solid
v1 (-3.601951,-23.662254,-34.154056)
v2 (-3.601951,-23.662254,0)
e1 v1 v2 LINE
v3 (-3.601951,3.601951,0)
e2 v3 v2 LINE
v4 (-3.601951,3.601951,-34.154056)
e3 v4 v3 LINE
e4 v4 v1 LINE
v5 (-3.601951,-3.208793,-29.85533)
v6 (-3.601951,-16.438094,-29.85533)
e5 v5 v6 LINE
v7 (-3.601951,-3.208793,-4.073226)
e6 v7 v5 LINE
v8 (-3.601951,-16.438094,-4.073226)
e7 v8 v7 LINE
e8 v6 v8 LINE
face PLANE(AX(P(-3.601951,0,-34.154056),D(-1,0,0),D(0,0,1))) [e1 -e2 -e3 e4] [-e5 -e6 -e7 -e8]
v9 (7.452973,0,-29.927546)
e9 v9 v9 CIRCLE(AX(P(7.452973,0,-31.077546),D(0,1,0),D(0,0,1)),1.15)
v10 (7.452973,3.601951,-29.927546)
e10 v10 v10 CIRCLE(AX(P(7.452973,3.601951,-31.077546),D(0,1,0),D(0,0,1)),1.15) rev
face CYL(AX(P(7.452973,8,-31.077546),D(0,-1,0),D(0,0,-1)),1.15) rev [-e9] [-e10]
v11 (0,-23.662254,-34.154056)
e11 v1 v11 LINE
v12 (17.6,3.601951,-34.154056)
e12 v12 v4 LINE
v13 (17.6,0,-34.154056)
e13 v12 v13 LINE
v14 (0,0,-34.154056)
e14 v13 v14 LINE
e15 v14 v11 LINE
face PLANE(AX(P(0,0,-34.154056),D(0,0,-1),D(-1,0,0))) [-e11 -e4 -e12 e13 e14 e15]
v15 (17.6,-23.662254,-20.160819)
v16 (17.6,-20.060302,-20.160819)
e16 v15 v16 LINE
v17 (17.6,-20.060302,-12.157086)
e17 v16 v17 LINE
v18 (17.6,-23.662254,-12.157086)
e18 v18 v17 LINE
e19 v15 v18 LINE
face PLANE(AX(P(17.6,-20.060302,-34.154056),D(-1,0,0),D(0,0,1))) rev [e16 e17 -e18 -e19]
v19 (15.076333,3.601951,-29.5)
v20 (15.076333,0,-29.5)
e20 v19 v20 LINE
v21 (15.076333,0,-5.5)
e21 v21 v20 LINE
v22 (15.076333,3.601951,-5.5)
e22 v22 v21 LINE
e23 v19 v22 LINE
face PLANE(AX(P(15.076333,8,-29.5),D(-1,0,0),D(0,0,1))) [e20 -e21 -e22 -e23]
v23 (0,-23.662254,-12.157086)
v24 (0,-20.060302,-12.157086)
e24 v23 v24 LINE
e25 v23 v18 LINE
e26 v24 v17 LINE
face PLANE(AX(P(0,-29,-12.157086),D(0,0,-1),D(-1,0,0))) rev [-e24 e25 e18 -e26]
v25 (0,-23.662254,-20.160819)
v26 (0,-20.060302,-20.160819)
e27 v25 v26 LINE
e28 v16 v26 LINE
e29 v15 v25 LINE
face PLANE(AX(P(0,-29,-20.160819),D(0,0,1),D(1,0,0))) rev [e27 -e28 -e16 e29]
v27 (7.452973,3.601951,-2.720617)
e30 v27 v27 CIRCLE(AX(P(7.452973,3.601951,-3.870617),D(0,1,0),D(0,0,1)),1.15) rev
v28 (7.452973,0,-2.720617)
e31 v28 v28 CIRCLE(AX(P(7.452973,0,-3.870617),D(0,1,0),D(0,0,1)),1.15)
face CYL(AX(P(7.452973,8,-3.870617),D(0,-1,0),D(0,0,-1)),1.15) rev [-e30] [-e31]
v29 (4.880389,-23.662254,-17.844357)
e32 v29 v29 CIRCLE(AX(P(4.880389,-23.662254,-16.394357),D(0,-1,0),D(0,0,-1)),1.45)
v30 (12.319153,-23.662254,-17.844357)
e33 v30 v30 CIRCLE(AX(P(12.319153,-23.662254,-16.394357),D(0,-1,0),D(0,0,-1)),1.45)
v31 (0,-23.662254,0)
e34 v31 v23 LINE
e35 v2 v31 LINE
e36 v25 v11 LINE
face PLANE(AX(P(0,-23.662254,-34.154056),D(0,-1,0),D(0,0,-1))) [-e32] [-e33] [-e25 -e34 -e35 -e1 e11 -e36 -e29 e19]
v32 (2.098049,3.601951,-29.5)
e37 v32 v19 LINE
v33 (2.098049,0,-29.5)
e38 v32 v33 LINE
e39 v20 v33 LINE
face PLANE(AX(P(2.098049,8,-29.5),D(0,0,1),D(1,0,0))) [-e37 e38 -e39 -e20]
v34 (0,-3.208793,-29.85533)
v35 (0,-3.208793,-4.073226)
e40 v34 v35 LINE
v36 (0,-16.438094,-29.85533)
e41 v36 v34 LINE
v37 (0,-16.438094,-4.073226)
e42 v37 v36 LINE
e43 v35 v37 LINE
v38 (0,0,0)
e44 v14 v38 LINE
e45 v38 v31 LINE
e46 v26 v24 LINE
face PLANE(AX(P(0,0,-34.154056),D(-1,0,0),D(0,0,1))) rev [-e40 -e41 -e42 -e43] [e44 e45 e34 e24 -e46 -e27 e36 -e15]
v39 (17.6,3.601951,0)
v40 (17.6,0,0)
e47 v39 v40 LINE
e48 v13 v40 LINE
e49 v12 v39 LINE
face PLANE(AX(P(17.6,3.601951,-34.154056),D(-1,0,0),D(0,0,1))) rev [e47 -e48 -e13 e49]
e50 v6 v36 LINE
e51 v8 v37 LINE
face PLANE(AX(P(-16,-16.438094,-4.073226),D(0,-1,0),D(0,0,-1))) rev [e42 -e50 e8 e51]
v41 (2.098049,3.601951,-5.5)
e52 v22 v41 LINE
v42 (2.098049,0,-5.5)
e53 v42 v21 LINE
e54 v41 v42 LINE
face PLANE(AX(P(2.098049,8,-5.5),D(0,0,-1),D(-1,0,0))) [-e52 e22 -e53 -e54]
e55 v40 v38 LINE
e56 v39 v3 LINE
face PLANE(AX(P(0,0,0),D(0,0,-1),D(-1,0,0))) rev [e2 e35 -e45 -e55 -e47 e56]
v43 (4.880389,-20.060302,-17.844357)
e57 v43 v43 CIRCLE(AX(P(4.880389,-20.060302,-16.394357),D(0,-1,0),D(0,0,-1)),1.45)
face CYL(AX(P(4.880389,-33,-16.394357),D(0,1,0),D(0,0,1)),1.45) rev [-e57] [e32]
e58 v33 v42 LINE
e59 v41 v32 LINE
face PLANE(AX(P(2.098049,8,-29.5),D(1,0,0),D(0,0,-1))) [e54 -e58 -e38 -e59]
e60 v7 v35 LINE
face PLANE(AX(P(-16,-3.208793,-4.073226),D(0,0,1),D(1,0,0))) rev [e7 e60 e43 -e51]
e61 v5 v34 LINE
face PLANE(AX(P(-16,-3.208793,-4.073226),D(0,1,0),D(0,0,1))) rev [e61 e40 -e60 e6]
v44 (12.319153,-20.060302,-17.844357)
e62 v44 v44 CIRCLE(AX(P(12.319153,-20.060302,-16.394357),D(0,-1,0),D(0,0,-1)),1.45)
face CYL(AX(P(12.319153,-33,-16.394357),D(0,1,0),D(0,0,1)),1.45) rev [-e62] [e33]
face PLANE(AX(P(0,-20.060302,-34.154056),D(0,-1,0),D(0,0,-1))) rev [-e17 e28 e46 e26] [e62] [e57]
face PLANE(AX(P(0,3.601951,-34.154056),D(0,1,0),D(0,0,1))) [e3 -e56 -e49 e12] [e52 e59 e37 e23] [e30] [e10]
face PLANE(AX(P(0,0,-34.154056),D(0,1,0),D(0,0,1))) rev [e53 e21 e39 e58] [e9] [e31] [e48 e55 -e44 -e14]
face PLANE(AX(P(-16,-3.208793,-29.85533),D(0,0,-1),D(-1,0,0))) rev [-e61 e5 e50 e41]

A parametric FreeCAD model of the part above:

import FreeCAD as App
import Part
import Sketcher

V = App.Vector
Q = App.Units.Quantity

doc = App.newDocument("Part")
params = doc.addObject("Spreadsheet::Sheet", "Params")
for row, (alias, value) in enumerate([
    ("sketch1_width", "17.6 mm"),
    ("pad1_length", "34.154056 mm"),
    ("sketch2_diameter", "2.3 mm"),
    ("sketch2_height", "24 mm"),
    ("pocket1_length", "8 mm"),
    ("sketch3_width", "17.6 mm"),
    ("pocket2_length", "29 mm"),
    ("sketch4_diameter", "2.9 mm"),
    ("pocket3_length", "33 mm"),
    ("pocket4_length", "16 mm"),
], start=1):
    params.set(f"A{row}", alias)
    params.set(f"B{row}", "=" + value)
    params.setAlias(f"B{row}", alias)

body = doc.addObject("PartDesign::Body", "Body")

sketch1 = body.newObject("Sketcher::SketchObject", "Sketch")
sketch1.AttachmentSupport = (doc.getObject("XY_Plane"), [""])
sketch1.MapMode = "FlatFace"
sketch1.addGeometry(Part.LineSegment(V(0, 0, 0), V(17.6, 0, 0)), False)
sketch1.addGeometry(Part.LineSegment(V(17.6, 0, 0), V(17.6, 3.6, 0)), False)
sketch1.addGeometry(Part.LineSegment(V(17.6, 3.6, 0), V(-3.6, 3.6, 0)), False)
sketch1.addGeometry(Part.LineSegment(V(-3.6, 3.6, 0), V(-3.6, -23.7, 0)), False)
sketch1.addGeometry(Part.LineSegment(V(-3.6, -23.7, 0), V(17.6, -23.7, 0)), False)
sketch1.addGeometry(Part.LineSegment(V(17.6, -23.7, 0), V(17.6, -20.1, 0)), False)
sketch1.addGeometry(Part.LineSegment(V(17.6, -20.1, 0), V(0, -20.1, 0)), False)
sketch1.addGeometry(Part.LineSegment(V(0, -20.1, 0), V(0, 0, 0)), False)
sketch1.addConstraint(Sketcher.Constraint("Coincident", 0, 2, 1, 1))
sketch1.addConstraint(Sketcher.Constraint("Coincident", 1, 2, 2, 1))
sketch1.addConstraint(Sketcher.Constraint("Coincident", 2, 2, 3, 1))
sketch1.addConstraint(Sketcher.Constraint("Coincident", 3, 2, 4, 1))
sketch1.addConstraint(Sketcher.Constraint("Coincident", 4, 2, 5, 1))
sketch1.addConstraint(Sketcher.Constraint("Coincident", 5, 2, 6, 1))
sketch1.addConstraint(Sketcher.Constraint("Coincident", 6, 2, 7, 1))
sketch1.addConstraint(Sketcher.Constraint("Coincident", 7, 2, 0, 1))
sketch1.addConstraint(Sketcher.Constraint("Horizontal", 0))
sketch1.addConstraint(Sketcher.Constraint("Vertical", 1))
sketch1.addConstraint(Sketcher.Constraint("Horizontal", 2))
sketch1.addConstraint(Sketcher.Constraint("Vertical", 3))
sketch1.addConstraint(Sketcher.Constraint("Horizontal", 4))
sketch1.addConstraint(Sketcher.Constraint("Vertical", 5))
sketch1.addConstraint(Sketcher.Constraint("Horizontal", 6))
sketch1.addConstraint(Sketcher.Constraint("Vertical", 7))
sketch1.addConstraint(Sketcher.Constraint("Coincident", 7, 2, -1, 1))
sketch1.addConstraint(Sketcher.Constraint("Vertical", 1, 2, 4, 2))
sketch1.addConstraint(Sketcher.Constraint("Equal", 1, 5))
sketch1.addConstraint(Sketcher.Constraint("DistanceX", 0, 1, 0, 2, Q("17.6 mm")))
sketch1.addConstraint(Sketcher.Constraint("DistanceX", 2, 2, 2, 1, Q("21.201951 mm")))
sketch1.addConstraint(Sketcher.Constraint("DistanceY", 1, 1, 1, 2, Q("3.601951 mm")))
sketch1.addConstraint(Sketcher.Constraint("DistanceY", 3, 2, 3, 1, Q("27.264205 mm")))
sketch1.setExpression("Constraints[19]", "Params.sketch1_width")
pad1 = body.newObject("PartDesign::Pad", "Pad")
pad1.Profile = sketch1
pad1.setExpression("Length", "Params.pad1_length")
pad1.Reversed = True

sketch2 = body.newObject("Sketcher::SketchObject", "Sketch001")
sketch2.AttachmentSupport = (doc.getObject("XZ_Plane"), [""])
sketch2.MapMode = "FlatFace"
sketch2.addGeometry(Part.Circle(V(7.5, -31.1, 0), V(0, 0, 1), 1.1), False)
sketch2.addGeometry(Part.Circle(V(7.5, -3.9, 0), V(0, 0, 1), 1.1), False)
sketch2.addGeometry(Part.LineSegment(V(2.1, -29.5, 0), V(2.1, -5.5, 0)), False)
sketch2.addGeometry(Part.LineSegment(V(2.1, -5.5, 0), V(15.1, -5.5, 0)), False)
sketch2.addGeometry(Part.LineSegment(V(15.1, -5.5, 0), V(15.1, -29.5, 0)), False)
sketch2.addGeometry(Part.LineSegment(V(15.1, -29.5, 0), V(2.1, -29.5, 0)), False)
sketch2.addConstraint(Sketcher.Constraint("Coincident", 2, 2, 3, 1))
sketch2.addConstraint(Sketcher.Constraint("Coincident", 3, 2, 4, 1))
sketch2.addConstraint(Sketcher.Constraint("Coincident", 4, 2, 5, 1))
sketch2.addConstraint(Sketcher.Constraint("Coincident", 5, 2, 2, 1))
sketch2.addConstraint(Sketcher.Constraint("Vertical", 2))
sketch2.addConstraint(Sketcher.Constraint("Horizontal", 3))
sketch2.addConstraint(Sketcher.Constraint("Vertical", 4))
sketch2.addConstraint(Sketcher.Constraint("Horizontal", 5))
sketch2.addConstraint(Sketcher.Constraint("Equal", 0, 1))
sketch2.addConstraint(Sketcher.Constraint("Vertical", 0, 3, 1, 3))
sketch2.addConstraint(Sketcher.Constraint("Diameter", 0, Q("2.3 mm")))
sketch2.addConstraint(Sketcher.Constraint("DistanceY", 2, 1, 2, 2, Q("24 mm")))
sketch2.addConstraint(Sketcher.Constraint("DistanceY", 2, 2, -1, 1, Q("5.5 mm")))
sketch2.addConstraint(Sketcher.Constraint("DistanceX", 3, 1, 3, 2, Q("12.978284 mm")))
sketch2.addConstraint(Sketcher.Constraint("DistanceX", -1, 1, 2, 2, Q("2.098049 mm")))
sketch2.addConstraint(Sketcher.Constraint("DistanceY", 0, 3, 1, 3, Q("27.206929 mm")))
sketch2.addConstraint(Sketcher.Constraint("DistanceX", 1, 3, 3, 2, Q("7.62336 mm")))
sketch2.addConstraint(Sketcher.Constraint("DistanceY", 0, 3, -1, 1, Q("31.077546 mm")))
sketch2.setExpression("Constraints[10]", "Params.sketch2_diameter")
sketch2.setExpression("Constraints[11]", "Params.sketch2_height")
pocket1 = body.newObject("PartDesign::Pocket", "Pocket")
pocket1.Profile = sketch2
pocket1.setExpression("Length", "Params.pocket1_length")

sketch3 = body.newObject("Sketcher::SketchObject", "Sketch002")
sketch3.AttachmentSupport = (doc.getObject("XZ_Plane"), [""])
sketch3.MapMode = "FlatFace"
sketch3.addGeometry(Part.LineSegment(V(0, -34, 0), V(0, -20, 0)), False)
sketch3.addGeometry(Part.LineSegment(V(0, -20, 0), V(18, -20, 0)), False)
sketch3.addGeometry(Part.LineSegment(V(18, -20, 0), V(18, -34, 0)), False)
sketch3.addGeometry(Part.LineSegment(V(18, -34, 0), V(0, -34, 0)), False)
sketch3.addGeometry(Part.LineSegment(V(0, -12, 0), V(0, 0, 0)), False)
sketch3.addGeometry(Part.LineSegment(V(0, 0, 0), V(18, 0, 0)), False)
sketch3.addGeometry(Part.LineSegment(V(18, 0, 0), V(18, -12, 0)), False)
sketch3.addGeometry(Part.LineSegment(V(18, -12, 0), V(0, -12, 0)), False)
sketch3.addConstraint(Sketcher.Constraint("Coincident", 0, 2, 1, 1))
sketch3.addConstraint(Sketcher.Constraint("Coincident", 1, 2, 2, 1))
sketch3.addConstraint(Sketcher.Constraint("Coincident", 2, 2, 3, 1))
sketch3.addConstraint(Sketcher.Constraint("Coincident", 3, 2, 0, 1))
sketch3.addConstraint(Sketcher.Constraint("Coincident", 4, 2, 5, 1))
sketch3.addConstraint(Sketcher.Constraint("Coincident", 5, 2, 6, 1))
sketch3.addConstraint(Sketcher.Constraint("Coincident", 6, 2, 7, 1))
sketch3.addConstraint(Sketcher.Constraint("Coincident", 7, 2, 4, 1))
sketch3.addConstraint(Sketcher.Constraint("Vertical", 0))
sketch3.addConstraint(Sketcher.Constraint("Horizontal", 1))
sketch3.addConstraint(Sketcher.Constraint("Vertical", 2))
sketch3.addConstraint(Sketcher.Constraint("Horizontal", 3))
sketch3.addConstraint(Sketcher.Constraint("Vertical", 4))
sketch3.addConstraint(Sketcher.Constraint("Horizontal", 5))
sketch3.addConstraint(Sketcher.Constraint("Vertical", 6))
sketch3.addConstraint(Sketcher.Constraint("Horizontal", 7))
sketch3.addConstraint(Sketcher.Constraint("Coincident", 4, 2, -1, 1))
sketch3.addConstraint(Sketcher.Constraint("PointOnObject", 0, 2, -2))
sketch3.addConstraint(Sketcher.Constraint("Vertical", 2, 2, 5, 2))
sketch3.addConstraint(Sketcher.Constraint("DistanceX", 1, 1, 1, 2, Q("17.6 mm")))
sketch3.addConstraint(Sketcher.Constraint("DistanceY", 0, 1, 0, 2, Q("13.993237 mm")))
sketch3.addConstraint(Sketcher.Constraint("DistanceY", 4, 1, 4, 2, Q("12.157086 mm")))
sketch3.addConstraint(Sketcher.Constraint("DistanceY", 0, 2, -1, 1, Q("20.160819 mm")))
sketch3.setExpression("Constraints[19]", "Params.sketch3_width")
pocket2 = body.newObject("PartDesign::Pocket", "Pocket001")
pocket2.Profile = sketch3
pocket2.setExpression("Length", "Params.pocket2_length")
pocket2.Reversed = True

sketch4 = body.newObject("Sketcher::SketchObject", "Sketch003")
sketch4.AttachmentSupport = (doc.getObject("XZ_Plane"), [""])
sketch4.MapMode = "FlatFace"
sketch4.addGeometry(Part.Circle(V(4.9, -16.4, 0), V(0, 0, 1), 1.4), False)
sketch4.addGeometry(Part.Circle(V(12.3, -16.4, 0), V(0, 0, 1), 1.4), False)
sketch4.addConstraint(Sketcher.Constraint("Equal", 0, 1))
sketch4.addConstraint(Sketcher.Constraint("Horizontal", 0, 3, 1, 3))
sketch4.addConstraint(Sketcher.Constraint("Diameter", 0, Q("2.9 mm")))
sketch4.addConstraint(Sketcher.Constraint("DistanceX", -1, 1, 0, 3, Q("4.880389 mm")))
sketch4.addConstraint(Sketcher.Constraint("DistanceY", 0, 3, -1, 1, Q("16.394357 mm")))
sketch4.addConstraint(Sketcher.Constraint("DistanceX", -1, 1, 1, 3, Q("12.319153 mm")))
sketch4.setExpression("Constraints[2]", "Params.sketch4_diameter")
pocket3 = body.newObject("PartDesign::Pocket", "Pocket002")
pocket3.Profile = sketch4
pocket3.setExpression("Length", "Params.pocket3_length")
pocket3.Reversed = True

sketch5 = body.newObject("Sketcher::SketchObject", "Sketch004")
sketch5.AttachmentSupport = (doc.getObject("YZ_Plane"), [""])
sketch5.MapMode = "FlatFace"
sketch5.addGeometry(Part.LineSegment(V(-3, -4, 0), V(-16, -4, 0)), False)
sketch5.addGeometry(Part.LineSegment(V(-16, -4, 0), V(-16, -30, 0)), False)
sketch5.addGeometry(Part.LineSegment(V(-16, -30, 0), V(-3, -30, 0)), False)
sketch5.addGeometry(Part.LineSegment(V(-3, -30, 0), V(-3, -4, 0)), False)
sketch5.addConstraint(Sketcher.Constraint("Coincident", 0, 2, 1, 1))
sketch5.addConstraint(Sketcher.Constraint("Coincident", 1, 2, 2, 1))
sketch5.addConstraint(Sketcher.Constraint("Coincident", 2, 2, 3, 1))
sketch5.addConstraint(Sketcher.Constraint("Coincident", 3, 2, 0, 1))
sketch5.addConstraint(Sketcher.Constraint("Horizontal", 0))
sketch5.addConstraint(Sketcher.Constraint("Vertical", 1))
sketch5.addConstraint(Sketcher.Constraint("Horizontal", 2))
sketch5.addConstraint(Sketcher.Constraint("Vertical", 3))
sketch5.addConstraint(Sketcher.Constraint("DistanceX", 0, 2, 0, 1, Q("13.229301 mm")))
sketch5.addConstraint(Sketcher.Constraint("DistanceY", 1, 2, 1, 1, Q("25.782104 mm")))
sketch5.addConstraint(Sketcher.Constraint("DistanceY", 1, 2, -1, 1, Q("29.85533 mm")))
sketch5.addConstraint(Sketcher.Constraint("DistanceX", 0, 2, -1, 1, Q("16.438094 mm")))
pocket4 = body.newObject("PartDesign::Pocket", "Pocket003")
pocket4.Profile = sketch5
pocket4.setExpression("Length", "Params.pocket4_length")

doc.recompute()
